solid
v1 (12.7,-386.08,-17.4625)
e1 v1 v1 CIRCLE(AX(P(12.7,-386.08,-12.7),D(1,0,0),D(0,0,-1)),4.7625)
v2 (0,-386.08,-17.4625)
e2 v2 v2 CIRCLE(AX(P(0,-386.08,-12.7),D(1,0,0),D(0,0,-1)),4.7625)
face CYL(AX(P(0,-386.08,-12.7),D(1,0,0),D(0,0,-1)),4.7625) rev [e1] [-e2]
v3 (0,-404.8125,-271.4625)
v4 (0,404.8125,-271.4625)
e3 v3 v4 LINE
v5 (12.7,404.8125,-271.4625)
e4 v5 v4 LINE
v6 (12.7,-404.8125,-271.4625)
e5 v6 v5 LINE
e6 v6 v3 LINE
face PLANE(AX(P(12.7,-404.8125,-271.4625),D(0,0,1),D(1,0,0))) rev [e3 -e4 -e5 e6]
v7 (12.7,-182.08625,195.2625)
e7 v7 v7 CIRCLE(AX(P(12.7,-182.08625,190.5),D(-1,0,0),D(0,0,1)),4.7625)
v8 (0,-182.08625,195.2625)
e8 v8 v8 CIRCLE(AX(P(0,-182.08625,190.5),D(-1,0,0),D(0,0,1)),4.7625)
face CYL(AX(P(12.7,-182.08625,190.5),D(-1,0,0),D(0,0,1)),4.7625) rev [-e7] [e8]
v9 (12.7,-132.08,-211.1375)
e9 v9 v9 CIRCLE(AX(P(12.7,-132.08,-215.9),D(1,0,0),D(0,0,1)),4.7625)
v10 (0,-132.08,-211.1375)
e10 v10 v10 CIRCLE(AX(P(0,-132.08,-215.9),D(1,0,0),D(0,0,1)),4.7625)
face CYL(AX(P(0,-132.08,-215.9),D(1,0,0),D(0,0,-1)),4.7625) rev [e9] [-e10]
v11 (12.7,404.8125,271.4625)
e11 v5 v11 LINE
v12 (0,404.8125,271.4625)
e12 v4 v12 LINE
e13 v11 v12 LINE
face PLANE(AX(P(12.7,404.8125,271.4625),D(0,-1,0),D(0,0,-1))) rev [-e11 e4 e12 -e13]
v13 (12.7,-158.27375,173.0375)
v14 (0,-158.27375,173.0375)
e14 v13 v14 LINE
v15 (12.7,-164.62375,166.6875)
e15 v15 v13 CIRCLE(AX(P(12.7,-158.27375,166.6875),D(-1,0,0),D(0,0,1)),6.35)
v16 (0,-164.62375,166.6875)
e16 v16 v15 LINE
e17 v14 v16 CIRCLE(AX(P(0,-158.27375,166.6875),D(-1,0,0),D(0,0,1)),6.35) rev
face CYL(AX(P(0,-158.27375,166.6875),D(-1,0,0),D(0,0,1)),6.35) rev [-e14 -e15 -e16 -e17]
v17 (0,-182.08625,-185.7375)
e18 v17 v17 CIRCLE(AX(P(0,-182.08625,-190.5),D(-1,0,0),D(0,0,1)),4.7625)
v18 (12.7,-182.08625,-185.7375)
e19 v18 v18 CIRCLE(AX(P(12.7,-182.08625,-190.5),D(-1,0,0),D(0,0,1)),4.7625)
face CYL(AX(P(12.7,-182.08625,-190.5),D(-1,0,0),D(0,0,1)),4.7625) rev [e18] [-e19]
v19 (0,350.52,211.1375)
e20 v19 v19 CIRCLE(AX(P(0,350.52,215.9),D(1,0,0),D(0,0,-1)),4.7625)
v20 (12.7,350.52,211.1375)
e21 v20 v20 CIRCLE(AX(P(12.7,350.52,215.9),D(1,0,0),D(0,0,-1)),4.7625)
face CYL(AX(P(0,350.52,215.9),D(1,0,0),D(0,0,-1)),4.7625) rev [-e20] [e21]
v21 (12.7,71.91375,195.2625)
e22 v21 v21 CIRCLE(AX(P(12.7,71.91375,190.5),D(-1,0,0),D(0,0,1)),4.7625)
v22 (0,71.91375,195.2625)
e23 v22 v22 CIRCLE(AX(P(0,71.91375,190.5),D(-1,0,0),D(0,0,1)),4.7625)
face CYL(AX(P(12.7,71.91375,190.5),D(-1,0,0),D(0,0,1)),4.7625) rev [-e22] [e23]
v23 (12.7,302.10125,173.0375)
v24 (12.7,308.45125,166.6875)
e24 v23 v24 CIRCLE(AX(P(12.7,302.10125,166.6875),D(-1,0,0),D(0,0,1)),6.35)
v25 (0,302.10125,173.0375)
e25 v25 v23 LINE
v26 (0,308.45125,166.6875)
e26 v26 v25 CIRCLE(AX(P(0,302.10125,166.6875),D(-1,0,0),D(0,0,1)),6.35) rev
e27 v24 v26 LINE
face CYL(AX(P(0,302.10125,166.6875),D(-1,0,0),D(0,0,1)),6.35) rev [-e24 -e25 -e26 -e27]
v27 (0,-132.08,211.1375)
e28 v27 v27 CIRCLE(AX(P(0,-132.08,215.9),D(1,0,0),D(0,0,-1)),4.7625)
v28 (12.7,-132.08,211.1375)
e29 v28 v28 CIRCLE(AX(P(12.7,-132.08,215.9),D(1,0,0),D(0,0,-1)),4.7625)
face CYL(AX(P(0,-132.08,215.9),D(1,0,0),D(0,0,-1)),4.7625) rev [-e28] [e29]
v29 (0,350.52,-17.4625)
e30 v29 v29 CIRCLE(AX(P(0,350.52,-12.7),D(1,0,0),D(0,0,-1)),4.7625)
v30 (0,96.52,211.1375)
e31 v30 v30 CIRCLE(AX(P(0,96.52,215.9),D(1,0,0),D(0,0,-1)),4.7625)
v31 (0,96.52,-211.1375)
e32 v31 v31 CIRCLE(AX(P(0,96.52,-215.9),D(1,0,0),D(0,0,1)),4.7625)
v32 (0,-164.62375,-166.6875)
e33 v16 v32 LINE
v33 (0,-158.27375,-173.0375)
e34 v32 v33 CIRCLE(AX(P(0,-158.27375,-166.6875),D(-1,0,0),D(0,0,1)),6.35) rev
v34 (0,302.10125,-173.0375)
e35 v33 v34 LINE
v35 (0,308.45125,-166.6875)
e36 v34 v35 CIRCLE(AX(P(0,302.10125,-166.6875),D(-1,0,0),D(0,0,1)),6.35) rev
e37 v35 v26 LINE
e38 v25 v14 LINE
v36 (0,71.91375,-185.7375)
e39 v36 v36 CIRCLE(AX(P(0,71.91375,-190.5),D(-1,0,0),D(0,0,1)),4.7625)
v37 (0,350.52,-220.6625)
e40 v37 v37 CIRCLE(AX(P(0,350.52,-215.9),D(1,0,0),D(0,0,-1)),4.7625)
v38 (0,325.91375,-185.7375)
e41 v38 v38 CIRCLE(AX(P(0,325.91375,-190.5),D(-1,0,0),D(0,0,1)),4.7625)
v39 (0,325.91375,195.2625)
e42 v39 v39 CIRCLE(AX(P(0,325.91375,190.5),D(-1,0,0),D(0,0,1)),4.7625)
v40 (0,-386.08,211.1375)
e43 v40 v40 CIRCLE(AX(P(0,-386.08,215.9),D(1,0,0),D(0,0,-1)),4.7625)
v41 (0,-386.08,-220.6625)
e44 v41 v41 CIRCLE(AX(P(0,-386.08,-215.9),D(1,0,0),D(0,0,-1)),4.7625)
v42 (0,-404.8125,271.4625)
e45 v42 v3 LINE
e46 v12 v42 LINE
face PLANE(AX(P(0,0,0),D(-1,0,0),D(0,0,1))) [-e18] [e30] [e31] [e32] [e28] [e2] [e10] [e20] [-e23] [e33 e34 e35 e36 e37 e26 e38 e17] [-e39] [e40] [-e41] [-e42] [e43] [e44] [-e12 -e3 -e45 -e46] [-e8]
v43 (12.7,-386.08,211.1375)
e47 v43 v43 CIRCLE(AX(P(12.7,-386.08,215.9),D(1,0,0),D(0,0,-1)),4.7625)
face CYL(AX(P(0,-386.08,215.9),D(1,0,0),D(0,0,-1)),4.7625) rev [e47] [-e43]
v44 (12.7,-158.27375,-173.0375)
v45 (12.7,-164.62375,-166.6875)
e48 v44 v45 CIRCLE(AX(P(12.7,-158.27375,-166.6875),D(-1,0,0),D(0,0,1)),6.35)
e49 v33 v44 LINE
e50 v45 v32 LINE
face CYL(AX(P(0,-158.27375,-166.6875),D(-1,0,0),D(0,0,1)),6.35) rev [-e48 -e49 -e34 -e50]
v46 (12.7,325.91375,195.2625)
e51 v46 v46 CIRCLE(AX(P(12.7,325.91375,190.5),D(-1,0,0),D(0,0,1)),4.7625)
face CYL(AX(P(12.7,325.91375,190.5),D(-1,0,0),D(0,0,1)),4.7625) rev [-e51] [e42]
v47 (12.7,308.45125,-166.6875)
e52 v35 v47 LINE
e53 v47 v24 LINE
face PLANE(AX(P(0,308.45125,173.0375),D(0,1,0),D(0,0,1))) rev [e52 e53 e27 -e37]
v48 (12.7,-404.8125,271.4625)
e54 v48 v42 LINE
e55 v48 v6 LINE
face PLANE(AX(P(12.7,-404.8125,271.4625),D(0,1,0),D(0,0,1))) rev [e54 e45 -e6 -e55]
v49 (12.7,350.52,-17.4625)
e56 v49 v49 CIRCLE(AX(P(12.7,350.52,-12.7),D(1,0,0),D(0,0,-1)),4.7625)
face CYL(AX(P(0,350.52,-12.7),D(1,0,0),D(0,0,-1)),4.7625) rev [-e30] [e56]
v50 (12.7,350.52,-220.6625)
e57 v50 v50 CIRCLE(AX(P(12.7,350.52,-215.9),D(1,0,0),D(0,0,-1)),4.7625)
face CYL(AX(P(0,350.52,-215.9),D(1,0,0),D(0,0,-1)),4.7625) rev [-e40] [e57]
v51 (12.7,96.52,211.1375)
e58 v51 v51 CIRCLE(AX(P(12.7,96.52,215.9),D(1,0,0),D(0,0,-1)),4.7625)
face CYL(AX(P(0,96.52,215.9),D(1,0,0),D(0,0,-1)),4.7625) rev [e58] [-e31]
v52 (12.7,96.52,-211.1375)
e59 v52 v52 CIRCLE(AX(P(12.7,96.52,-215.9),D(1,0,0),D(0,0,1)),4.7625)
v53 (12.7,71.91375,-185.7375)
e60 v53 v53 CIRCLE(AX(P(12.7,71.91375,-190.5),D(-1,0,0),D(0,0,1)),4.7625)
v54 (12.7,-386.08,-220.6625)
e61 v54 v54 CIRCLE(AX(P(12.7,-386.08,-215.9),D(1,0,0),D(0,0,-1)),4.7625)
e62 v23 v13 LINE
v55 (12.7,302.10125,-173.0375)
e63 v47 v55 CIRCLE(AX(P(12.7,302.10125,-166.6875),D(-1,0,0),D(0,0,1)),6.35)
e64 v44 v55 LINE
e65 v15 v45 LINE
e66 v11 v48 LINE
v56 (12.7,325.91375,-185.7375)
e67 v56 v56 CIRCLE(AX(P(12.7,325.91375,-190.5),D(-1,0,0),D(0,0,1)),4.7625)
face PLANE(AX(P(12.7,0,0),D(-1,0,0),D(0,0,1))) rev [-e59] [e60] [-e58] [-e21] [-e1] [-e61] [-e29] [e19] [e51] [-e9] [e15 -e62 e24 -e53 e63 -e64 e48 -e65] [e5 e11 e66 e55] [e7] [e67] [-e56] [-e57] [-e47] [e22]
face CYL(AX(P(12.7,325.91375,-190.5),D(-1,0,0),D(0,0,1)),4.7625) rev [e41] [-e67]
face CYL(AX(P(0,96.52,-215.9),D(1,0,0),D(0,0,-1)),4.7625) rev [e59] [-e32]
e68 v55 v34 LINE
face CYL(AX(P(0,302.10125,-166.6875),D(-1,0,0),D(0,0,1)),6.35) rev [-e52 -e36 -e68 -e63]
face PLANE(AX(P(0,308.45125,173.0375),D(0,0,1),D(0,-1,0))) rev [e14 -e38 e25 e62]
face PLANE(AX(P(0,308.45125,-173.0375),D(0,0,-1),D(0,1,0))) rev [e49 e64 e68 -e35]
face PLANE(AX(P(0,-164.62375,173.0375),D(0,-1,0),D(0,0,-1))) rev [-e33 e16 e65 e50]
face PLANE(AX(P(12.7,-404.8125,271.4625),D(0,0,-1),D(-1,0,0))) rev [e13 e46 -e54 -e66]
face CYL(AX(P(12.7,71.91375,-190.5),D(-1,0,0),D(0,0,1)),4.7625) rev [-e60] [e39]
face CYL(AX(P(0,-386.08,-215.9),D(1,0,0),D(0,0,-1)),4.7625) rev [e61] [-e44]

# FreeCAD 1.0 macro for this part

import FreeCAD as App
import Part
import Sketcher
from FreeCAD import Vector
Q = App.Units.Quantity


def edges_at(feature, points):
    """Names of the edges that pass closest to the given points."""
    edges = feature.Shape.Edges
    near = lambda p: min(range(len(edges)), key=lambda i: edges[i].distToShape(Part.Vertex(*p))[0])
    return sorted({f"Edge{near(p) + 1}" for p in points})


def add_polygon(sketch, points):
    """Adds a closed chain of lines whose ends are joined by coincident constraints."""
    first, n = sketch.GeometryCount, len(points)
    for a, b in zip(points, points[1:] + points[:1]):
        sketch.addGeometry(Part.LineSegment(App.Vector(*a, 0), App.Vector(*b, 0)), False)
    for i in range(n):
        sketch.addConstraint(Sketcher.Constraint("Coincident", first + i, 2, first + (i + 1) % n, 1))

doc = App.newDocument("Part")
params = doc.addObject("Spreadsheet::Sheet", "Params")
for row, (alias, value) in enumerate([
    ("sketch1_width", "31.875 in"),
    ("sketch1_height", "21.375 in"),
    ("pad1_length", "0.5 in"),
    ("sketch2_diameter", "0.375 in"),
    ("pocket1_length", "0.5 in"),
    ("sketch3_diameter", "0.375 in"),
    ("pocket2_length", "0.5 in"),
    ("sketch4_diameter", "0.375 in"),
    ("pocket3_length", "0.5 in"),
    ("sketch5_diameter", "0.375 in"),
    ("pocket4_length", "0.5 in"),
    ("sketch6_width", "18.625 in"),
    ("sketch6_height", "13.625 in"),
    ("pocket5_length", "0.5 in"),
    ("fillet_radius", "0.25 in"),
], start=1):
    params.set(f"A{row}", alias)
    params.set(f"B{row}", "=" + value)
    params.setAlias(f"B{row}", alias)

body = doc.addObject("PartDesign::Body", "Body")

# Sketch on YZ plane
sketch1 = doc.addObject("Sketcher::SketchObject", "Sketch")
body.addObject(sketch1)
sketch1.AttachmentSupport = (doc.YZ_Plane, [""])
sketch1.MapMode = "FlatFace"
add_polygon(sketch1, [(405, 271), (-405, 271), (-405, -271), (405, -271)])  # lines 0-3
sketch1.addConstraint([
    Sketcher.Constraint("Horizontal", 0),
    Sketcher.Constraint("Vertical", 1),
    Sketcher.Constraint("Horizontal", 2),
    Sketcher.Constraint("Vertical", 3),
    Sketcher.Constraint("Symmetric", 0, 2, 2, 2, -1, 1),
    Sketcher.Constraint("DistanceX", 0, 2, 0, 1, Q("31.875 in")),
    Sketcher.Constraint("DistanceY", 1, 2, 1, 1, Q("21.375 in")),
])
sketch1.setExpression("Constraints[9]", "Params.sketch1_width")
sketch1.setExpression("Constraints[10]", "Params.sketch1_height")
pad1 = doc.addObject("PartDesign::Pad", "Pad")
body.addObject(pad1)
pad1.Profile = sketch1
pad1.setExpression("Length", "Params.pad1_length")

# Sketch on YZ plane
sketch2 = doc.addObject("Sketcher::SketchObject", "Sketch001")
body.addObject(sketch2)
sketch2.AttachmentSupport = (doc.YZ_Plane, [""])
sketch2.MapMode = "FlatFace"
sketch2.AttachmentOffset = App.Placement(Vector(0, 0, 0.5 * 25.4), App.Rotation())
sketch2.addGeometry([
    Part.Circle(Vector(350.5, 215.9, 0), Vector(0, 0, 1), 4.8),
    Part.Circle(Vector(350.5, -215.9, 0), Vector(0, 0, 1), 4.8),
    Part.Circle(Vector(-386.1, 215.9, 0), Vector(0, 0, 1), 4.8),
    Part.Circle(Vector(-386.1, -215.9, 0), Vector(0, 0, 1), 4.8),
], False)
sketch2.addConstraint([
    Sketcher.Constraint("Equal", 0, 1),
    Sketcher.Constraint("Equal", 1, 2),
    Sketcher.Constraint("Equal", 2, 3),
    Sketcher.Constraint("Symmetric", 0, 3, 1, 3, -1),
    Sketcher.Constraint("Symmetric", 2, 3, 3, 3, -1),
    Sketcher.Constraint("Horizontal", 0, 3, 2, 3),
    Sketcher.Constraint("Diameter", 0, Q("0.375 in")),
    Sketcher.Constraint("DistanceY", 1, 3, 0, 3, Q("17 in")),
    Sketcher.Constraint("DistanceX", 2, 3, 0, 3, Q("29 in")),
    Sketcher.Constraint("DistanceX", -1, 1, 0, 3, Q("13.8 in")),
])
sketch2.setExpression("Constraints[6]", "Params.sketch2_diameter")
pocket1 = doc.addObject("PartDesign::Pocket", "Pocket")
body.addObject(pocket1)
pocket1.Profile = sketch2
pocket1.setExpression("Length", "Params.pocket1_length")

# Sketch on YZ plane
sketch3 = doc.addObject("Sketcher::SketchObject", "Sketch002")
body.addObject(sketch3)
sketch3.AttachmentSupport = (doc.YZ_Plane, [""])
sketch3.MapMode = "FlatFace"
sketch3.AttachmentOffset = App.Placement(Vector(0, 0, 0.5 * 25.4), App.Rotation())
sketch3.addGeometry([
    Part.Circle(Vector(96.5, 215.9, 0), Vector(0, 0, 1), 4.8),  # 0
    Part.Circle(Vector(-132.1, 215.9, 0), Vector(0, 0, 1), 4.8),  # 1
    Part.Circle(Vector(350.5, -12.7, 0), Vector(0, 0, 1), 4.8),  # 2
    Part.Circle(Vector(-386.1, -12.7, 0), Vector(0, 0, 1), 4.8),  # 3
    Part.Circle(Vector(-132.1, -215.9, 0), Vector(0, 0, 1), 4.8),  # 4
    Part.Circle(Vector(96.5, -215.9, 0), Vector(0, 0, 1), 4.8),  # 5
], False)
sketch3.addConstraint([
    Sketcher.Constraint("Equal", 0, 1),
    Sketcher.Constraint("Equal", 1, 2),
    Sketcher.Constraint("Equal", 2, 3),
    Sketcher.Constraint("Equal", 3, 4),
    Sketcher.Constraint("Equal", 4, 5),
    Sketcher.Constraint("Symmetric", 1, 3, 4, 3, -1),
    Sketcher.Constraint("Symmetric", 0, 3, 5, 3, -1),
    Sketcher.Constraint("Horizontal", 0, 3, 1, 3),
    Sketcher.Constraint("Horizontal", 2, 3, 3, 3),
    Sketcher.Constraint("Diameter", 0, Q("0.375 in")),
    Sketcher.Constraint("DistanceX", 1, 3, 0, 3, Q("9 in")),
    Sketcher.Constraint("DistanceX", 0, 3, 2, 3, Q("10 in")),
    Sketcher.Constraint("DistanceY", 2, 3, 0, 3, Q("9 in")),
    Sketcher.Constraint("DistanceX", 3, 3, 1, 3, Q("10 in")),
    Sketcher.Constraint("DistanceY", 4, 3, 3, 3, Q("8 in")),
    Sketcher.Constraint("DistanceX", -1, 1, 0, 3, Q("3.8 in")),
])
sketch3.setExpression("Constraints[9]", "Params.sketch3_diameter")
pocket2 = doc.addObject("PartDesign::Pocket", "Pocket001")
body.addObject(pocket2)
pocket2.Profile = sketch3
pocket2.setExpression("Length", "Params.pocket2_length")

# Sketch on YZ plane
sketch4 = doc.addObject("Sketcher::SketchObject", "Sketch003")
body.addObject(sketch4)
sketch4.AttachmentSupport = (doc.YZ_Plane, [""])
sketch4.MapMode = "FlatFace"
sketch4.addGeometry([
    Part.Circle(Vector(325.9, -190.5, 0), Vector(0, 0, 1), 4.8),
    Part.Circle(Vector(325.9, 190.5, 0), Vector(0, 0, 1), 4.8),
    Part.Circle(Vector(-182.1, -190.5, 0), Vector(0, 0, 1), 4.8),
    Part.Circle(Vector(-182.1, 190.5, 0), Vector(0, 0, 1), 4.8),
], False)
sketch4.addConstraint([
    Sketcher.Constraint("Equal", 0, 1),
    Sketcher.Constraint("Equal", 1, 2),
    Sketcher.Constraint("Equal", 2, 3),
    Sketcher.Constraint("Symmetric", 0, 3, 1, 3, -1),
    Sketcher.Constraint("Symmetric", 2, 3, 3, 3, -1),
    Sketcher.Constraint("Horizontal", 0, 3, 2, 3),
    Sketcher.Constraint("Diameter", 0, Q("0.375 in")),
    Sketcher.Constraint("DistanceY", 0, 3, 1, 3, Q("15 in")),
    Sketcher.Constraint("DistanceX", 2, 3, 0, 3, Q("20 in")),
    Sketcher.Constraint("DistanceX", -1, 1, 0, 3, 325.91375),
])
sketch4.setExpression("Constraints[6]", "Params.sketch4_diameter")
pocket3 = doc.addObject("PartDesign::Pocket", "Pocket002")
body.addObject(pocket3)
pocket3.Profile = sketch4
pocket3.setExpression("Length", "Params.pocket3_length")
pocket3.Reversed = True

# Sketch on YZ plane
sketch5 = doc.addObject("Sketcher::SketchObject", "Sketch004")
body.addObject(sketch5)
sketch5.AttachmentSupport = (doc.YZ_Plane, [""])
sketch5.MapMode = "FlatFace"
sketch5.addGeometry([
    Part.Circle(Vector(71.9, -190.5, 0), Vector(0, 0, 1), 4.8),
    Part.Circle(Vector(71.9, 190.5, 0), Vector(0, 0, 1), 4.8),
], False)
sketch5.addConstraint([
    Sketcher.Constraint("Equal", 0, 1),
    Sketcher.Constraint("Symmetric", 0, 3, 1, 3, -1),
    Sketcher.Constraint("Diameter", 0, Q("0.375 in")),
    Sketcher.Constraint("DistanceY", 0, 3, 1, 3, Q("15 in")),
    Sketcher.Constraint("DistanceX", -1, 1, 0, 3, 71.91375),
])
sketch5.setExpression("Constraints[2]", "Params.sketch5_diameter")
pocket4 = doc.addObject("PartDesign::Pocket", "Pocket003")
body.addObject(pocket4)
pocket4.Profile = sketch5
pocket4.setExpression("Length", "Params.pocket4_length")
pocket4.Reversed = True

# Sketch on YZ plane
sketch6 = doc.addObject("Sketcher::SketchObject", "Sketch005")
body.addObject(sketch6)
sketch6.AttachmentSupport = (doc.YZ_Plane, [""])
sketch6.MapMode = "FlatFace"
sketch6.AttachmentOffset = App.Placement(Vector(0, 0, 0.5 * 25.4), App.Rotation())
add_polygon(sketch6, [(308, 173), (-165, 173), (-165, -173), (308, -173)])  # lines 0-3
sketch6.addConstraint([
    Sketcher.Constraint("Horizontal", 0),
    Sketcher.Constraint("Vertical", 1),
    Sketcher.Constraint("Horizontal", 2),
    Sketcher.Constraint("Vertical", 3),
    Sketcher.Constraint("DistanceX", 0, 2, 0, 1, Q("18.625 in")),
    Sketcher.Constraint("DistanceY", 1, 2, 1, 1, Q("13.625 in")),
    Sketcher.Constraint("DistanceY", -1, 1, 0, 2, Q("6.8125 in")),
    Sketcher.Constraint("DistanceX", 0, 2, -1, 1, 164.62375),
])
sketch6.setExpression("Constraints[8]", "Params.sketch6_width")
sketch6.setExpression("Constraints[9]", "Params.sketch6_height")
pocket5 = doc.addObject("PartDesign::Pocket", "Pocket004")
body.addObject(pocket5)
pocket5.Profile = sketch6
pocket5.setExpression("Length", "Params.pocket5_length")
doc.recompute()

fillet = doc.addObject("PartDesign::Fillet", "Fillet")
body.addObject(fillet)
fillet.Base = (pocket5, edges_at(pocket5, [
    (6.35, -164.624, -173.037),
    (6.35, -164.624, 173.037),
    (6.35, 308.451, 173.037),
    (6.35, 308.451, -173.037),
]))
fillet.setExpression("Radius", "Params.fillet_radius")

doc.recompute()
